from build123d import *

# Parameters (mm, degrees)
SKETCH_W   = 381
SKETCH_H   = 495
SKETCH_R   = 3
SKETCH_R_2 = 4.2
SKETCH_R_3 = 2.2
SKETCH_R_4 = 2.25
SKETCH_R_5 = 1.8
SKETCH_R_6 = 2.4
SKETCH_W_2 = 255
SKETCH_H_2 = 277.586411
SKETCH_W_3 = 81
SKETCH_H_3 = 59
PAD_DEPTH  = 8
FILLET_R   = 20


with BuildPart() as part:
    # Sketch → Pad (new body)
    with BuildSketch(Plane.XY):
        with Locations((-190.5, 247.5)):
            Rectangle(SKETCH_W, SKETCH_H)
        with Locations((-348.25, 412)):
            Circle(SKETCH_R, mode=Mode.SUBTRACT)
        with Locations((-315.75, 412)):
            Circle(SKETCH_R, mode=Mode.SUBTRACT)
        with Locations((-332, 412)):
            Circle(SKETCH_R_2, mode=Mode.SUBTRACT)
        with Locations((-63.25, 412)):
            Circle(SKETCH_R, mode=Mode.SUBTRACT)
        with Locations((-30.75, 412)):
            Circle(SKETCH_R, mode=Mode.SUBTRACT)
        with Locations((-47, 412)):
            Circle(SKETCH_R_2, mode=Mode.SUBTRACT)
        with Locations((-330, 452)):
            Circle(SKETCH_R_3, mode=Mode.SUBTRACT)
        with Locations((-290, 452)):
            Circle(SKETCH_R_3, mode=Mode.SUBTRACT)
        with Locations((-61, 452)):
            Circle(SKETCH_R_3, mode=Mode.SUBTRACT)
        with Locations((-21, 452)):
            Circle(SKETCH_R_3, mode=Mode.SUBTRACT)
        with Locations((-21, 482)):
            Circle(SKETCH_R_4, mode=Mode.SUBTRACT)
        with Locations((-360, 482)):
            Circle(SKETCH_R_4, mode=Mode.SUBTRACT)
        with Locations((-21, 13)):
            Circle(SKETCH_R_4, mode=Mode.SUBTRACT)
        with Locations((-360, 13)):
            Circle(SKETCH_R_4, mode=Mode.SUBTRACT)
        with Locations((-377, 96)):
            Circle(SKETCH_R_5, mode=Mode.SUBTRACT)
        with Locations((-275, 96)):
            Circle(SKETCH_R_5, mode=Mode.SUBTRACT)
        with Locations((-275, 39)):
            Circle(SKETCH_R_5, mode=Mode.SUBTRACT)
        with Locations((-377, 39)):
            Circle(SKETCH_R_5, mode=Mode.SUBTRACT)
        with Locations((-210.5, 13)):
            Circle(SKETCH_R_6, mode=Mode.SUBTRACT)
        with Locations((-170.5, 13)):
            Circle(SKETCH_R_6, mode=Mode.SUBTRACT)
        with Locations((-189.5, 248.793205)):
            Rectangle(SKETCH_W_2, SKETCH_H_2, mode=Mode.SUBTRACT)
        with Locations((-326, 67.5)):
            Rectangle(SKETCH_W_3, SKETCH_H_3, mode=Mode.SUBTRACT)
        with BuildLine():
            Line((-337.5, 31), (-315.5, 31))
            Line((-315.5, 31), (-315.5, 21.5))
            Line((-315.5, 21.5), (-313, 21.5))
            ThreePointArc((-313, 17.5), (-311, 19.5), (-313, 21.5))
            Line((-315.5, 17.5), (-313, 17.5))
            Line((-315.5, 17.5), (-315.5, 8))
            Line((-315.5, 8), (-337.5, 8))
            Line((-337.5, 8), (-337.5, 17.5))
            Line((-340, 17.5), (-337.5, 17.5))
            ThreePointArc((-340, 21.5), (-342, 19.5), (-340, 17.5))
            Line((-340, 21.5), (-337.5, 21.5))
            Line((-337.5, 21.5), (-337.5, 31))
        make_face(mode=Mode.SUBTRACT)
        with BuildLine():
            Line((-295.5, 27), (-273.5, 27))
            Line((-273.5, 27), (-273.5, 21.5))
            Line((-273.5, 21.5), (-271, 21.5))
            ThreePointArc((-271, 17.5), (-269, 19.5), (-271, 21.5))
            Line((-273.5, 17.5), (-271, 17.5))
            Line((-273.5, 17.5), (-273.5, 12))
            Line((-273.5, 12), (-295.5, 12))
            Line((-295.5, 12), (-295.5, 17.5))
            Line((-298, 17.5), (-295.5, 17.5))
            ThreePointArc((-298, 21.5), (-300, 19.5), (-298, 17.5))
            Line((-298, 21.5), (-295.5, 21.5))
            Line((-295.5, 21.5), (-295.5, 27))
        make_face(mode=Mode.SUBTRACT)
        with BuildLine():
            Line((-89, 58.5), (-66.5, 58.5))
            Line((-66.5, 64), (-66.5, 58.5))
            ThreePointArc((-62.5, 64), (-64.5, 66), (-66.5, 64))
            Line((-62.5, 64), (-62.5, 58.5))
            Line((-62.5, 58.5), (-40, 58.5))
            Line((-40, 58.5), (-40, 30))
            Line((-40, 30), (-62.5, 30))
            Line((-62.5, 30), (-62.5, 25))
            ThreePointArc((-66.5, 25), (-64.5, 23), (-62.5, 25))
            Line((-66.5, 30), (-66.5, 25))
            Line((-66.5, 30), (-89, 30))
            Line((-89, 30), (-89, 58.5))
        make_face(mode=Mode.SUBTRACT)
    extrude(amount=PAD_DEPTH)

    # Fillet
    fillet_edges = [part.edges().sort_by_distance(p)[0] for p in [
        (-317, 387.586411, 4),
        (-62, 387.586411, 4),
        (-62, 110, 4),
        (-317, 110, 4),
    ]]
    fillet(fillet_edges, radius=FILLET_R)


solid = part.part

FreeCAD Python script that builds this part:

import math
import FreeCAD as App
import Part
import Sketcher

V = App.Vector
Q = App.Units.Quantity


def edges_at(feature, points):
    """Names of the edges that pass closest to the given points."""
    edges = feature.Shape.Edges
    near = lambda p: min(range(len(edges)), key=lambda i: edges[i].distToShape(Part.Vertex(*p))[0])
    return sorted({f"Edge{near(p) + 1}" for p in points})


def add_polygon(sketch, points):
    """Adds a closed chain of lines whose ends are joined by coincident constraints."""
    first, n = sketch.GeometryCount, len(points)
    for a, b in zip(points, points[1:] + points[:1]):
        sketch.addGeometry(Part.LineSegment(App.Vector(*a, 0), App.Vector(*b, 0)), False)
    for i in range(n):
        sketch.addConstraint(Sketcher.Constraint("Coincident", first + i, 2, first + (i + 1) % n, 1))

doc = App.newDocument("Part")
body = doc.addObject("PartDesign::Body", "Body")

sketch1 = doc.addObject("Sketcher::SketchObject", "Sketch")
body.addObject(sketch1)
sketch1.AttachmentSupport = (doc.XY_Plane, [""])
sketch1.MapMode = "FlatFace"
add_polygon(sketch1, [(-381, 495), (-381, 0), (0, 0), (0, 495)])
sketch1.addGeometry(Part.Circle(V(-360, 13, 0), V(0, 0, 1), 2.25), False)
sketch1.addGeometry(Part.Circle(V(-377, 39, 0), V(0, 0, 1), 1.8), False)
sketch1.addGeometry(Part.LineSegment(V(-337.5, 21.5, 0), V(-337.5, 31, 0)), False)
sketch1.addGeometry(Part.LineSegment(V(-337.5, 31, 0), V(-315.5, 31, 0)), False)
sketch1.addGeometry(Part.LineSegment(V(-315.5, 31, 0), V(-315.5, 21.5, 0)), False)
sketch1.addGeometry(Part.LineSegment(V(-315.5, 21.5, 0), V(-313, 21.5, 0)), False)
sketch1.addGeometry(Part.ArcOfCircle(Part.Circle(V(-313, 19.5, 0), V(0, 0, 1), 2), math.radians(-90), math.radians(90)), False)
sketch1.addGeometry(Part.LineSegment(V(-313, 17.5, 0), V(-315.5, 17.5, 0)), False)
sketch1.addGeometry(Part.LineSegment(V(-315.5, 17.5, 0), V(-315.5, 8, 0)), False)
sketch1.addGeometry(Part.LineSegment(V(-315.5, 8, 0), V(-337.5, 8, 0)), False)
sketch1.addGeometry(Part.LineSegment(V(-337.5, 8, 0), V(-337.5, 17.5, 0)), False)
sketch1.addGeometry(Part.LineSegment(V(-337.5, 17.5, 0), V(-340, 17.5, 0)), False)
sketch1.addGeometry(Part.ArcOfCircle(Part.Circle(V(-340, 19.5, 0), V(0, 0, 1), 2), math.radians(90), math.radians(270)), False)
sketch1.addGeometry(Part.LineSegment(V(-340, 21.5, 0), V(-337.5, 21.5, 0)), False)
add_polygon(sketch1, [(-285.5, 38), (-366.5, 38), (-366.5, 97), (-285.5, 97)])
sketch1.addGeometry(Part.Circle(V(-377, 96, 0), V(0, 0, 1), 1.8), False)
sketch1.addGeometry(Part.LineSegment(V(-295.5, 21.5, 0), V(-295.5, 27, 0)), False)
sketch1.addGeometry(Part.LineSegment(V(-295.5, 27, 0), V(-273.5, 27, 0)), False)
sketch1.addGeometry(Part.LineSegment(V(-273.5, 27, 0), V(-273.5, 21.5, 0)), False)
sketch1.addGeometry(Part.LineSegment(V(-273.5, 21.5, 0), V(-271, 21.5, 0)), False)
sketch1.addGeometry(Part.ArcOfCircle(Part.Circle(V(-271, 19.5, 0), V(0, 0, 1), 2), math.radians(-90), math.radians(90)), False)
sketch1.addGeometry(Part.LineSegment(V(-271, 17.5, 0), V(-273.5, 17.5, 0)), False)
sketch1.addGeometry(Part.LineSegment(V(-273.5, 17.5, 0), V(-273.5, 12, 0)), False)
sketch1.addGeometry(Part.LineSegment(V(-273.5, 12, 0), V(-295.5, 12, 0)), False)
sketch1.addGeometry(Part.LineSegment(V(-295.5, 12, 0), V(-295.5, 17.5, 0)), False)
sketch1.addGeometry(Part.LineSegment(V(-295.5, 17.5, 0), V(-298, 17.5, 0)), False)
sketch1.addGeometry(Part.ArcOfCircle(Part.Circle(V(-298, 19.5, 0), V(0, 0, 1), 2), math.radians(90), math.radians(270)), False)
sketch1.addGeometry(Part.LineSegment(V(-298, 21.5, 0), V(-295.5, 21.5, 0)), False)
sketch1.addGeometry(Part.Circle(V(-275, 39, 0), V(0, 0, 1), 1.8), False)
sketch1.addGeometry(Part.Circle(V(-210.5, 13, 0), V(0, 0, 1), 2.4), False)
sketch1.addGeometry(Part.Circle(V(-275, 96, 0), V(0, 0, 1), 1.8), False)
sketch1.addGeometry(Part.Circle(V(-170.5, 13, 0), V(0, 0, 1), 2.4), False)
sketch1.addGeometry(Part.LineSegment(V(-89, 30, 0), V(-89, 58.5, 0)), False)
sketch1.addGeometry(Part.LineSegment(V(-89, 58.5, 0), V(-66.5, 58.5, 0)), False)
sketch1.addGeometry(Part.LineSegment(V(-66.5, 58.5, 0), V(-66.5, 64, 0)), False)
sketch1.addGeometry(Part.ArcOfCircle(Part.Circle(V(-64.5, 64, 0), V(0, 0, 1), 2), math.radians(0), math.radians(180)), False)
sketch1.addGeometry(Part.LineSegment(V(-62.5, 64, 0), V(-62.5, 58.5, 0)), False)
sketch1.addGeometry(Part.LineSegment(V(-62.5, 58.5, 0), V(-40, 58.5, 0)), False)
sketch1.addGeometry(Part.LineSegment(V(-40, 58.5, 0), V(-40, 30, 0)), False)
sketch1.addGeometry(Part.LineSegment(V(-40, 30, 0), V(-62.5, 30, 0)), False)
sketch1.addGeometry(Part.LineSegment(V(-62.5, 30, 0), V(-62.5, 25, 0)), False)
sketch1.addGeometry(Part.ArcOfCircle(Part.Circle(V(-64.5, 25, 0), V(0, 0, 1), 2), math.radians(180), math.radians(360)), False)
sketch1.addGeometry(Part.LineSegment(V(-66.5, 25, 0), V(-66.5, 30, 0)), False)
sketch1.addGeometry(Part.LineSegment(V(-66.5, 30, 0), V(-89, 30, 0)), False)
sketch1.addGeometry(Part.Circle(V(-21, 13, 0), V(0, 0, 1), 2.25), False)
sketch1.addGeometry(Part.Circle(V(-348.25, 412, 0), V(0, 0, 1), 3), False)
sketch1.addGeometry(Part.Circle(V(-332, 412, 0), V(0, 0, 1), 4.2), False)
sketch1.addGeometry(Part.Circle(V(-315.75, 412, 0), V(0, 0, 1), 3), False)
sketch1.addGeometry(Part.Circle(V(-360, 482, 0), V(0, 0, 1), 2.25), False)
sketch1.addGeometry(Part.Circle(V(-330, 452, 0), V(0, 0, 1), 2.2), False)
sketch1.addGeometry(Part.Circle(V(-290, 452, 0), V(0, 0, 1), 2.2), False)
add_polygon(sketch1, [(-62, 110), (-317, 110), (-317, 387.58641), (-62, 387.58641)])
sketch1.addGeometry(Part.Circle(V(-63.25, 412, 0), V(0, 0, 1), 3), False)
sketch1.addGeometry(Part.Circle(V(-47, 412, 0), V(0, 0, 1), 4.2), False)
sketch1.addGeometry(Part.Circle(V(-30.75, 412, 0), V(0, 0, 1), 3), False)
sketch1.addGeometry(Part.Circle(V(-61, 452, 0), V(0, 0, 1), 2.2), False)
sketch1.addGeometry(Part.Circle(V(-21, 452, 0), V(0, 0, 1), 2.2), False)
sketch1.addGeometry(Part.Circle(V(-21, 482, 0), V(0, 0, 1), 2.25), False)
sketch1.addConstraint([
    Sketcher.Constraint("Coincident", 6, 2, 7, 1),
    Sketcher.Constraint("Coincident", 7, 2, 8, 1),
    Sketcher.Constraint("Coincident", 8, 2, 9, 1),
    Sketcher.Constraint("Tangent", 9, 2, 10, 2),
    Sketcher.Constraint("Tangent", 10, 1, 11, 1),
    Sketcher.Constraint("Coincident", 11, 2, 12, 1),
    Sketcher.Constraint("Coincident", 12, 2, 13, 1),
    Sketcher.Constraint("Coincident", 13, 2, 14, 1),
    Sketcher.Constraint("Coincident", 14, 2, 15, 1),
    Sketcher.Constraint("Tangent", 15, 2, 16, 2),
    Sketcher.Constraint("Tangent", 16, 1, 17, 1),
    Sketcher.Constraint("Coincident", 17, 2, 6, 1),
    Sketcher.Constraint("Coincident", 23, 2, 24, 1),
    Sketcher.Constraint("Coincident", 24, 2, 25, 1),
    Sketcher.Constraint("Coincident", 25, 2, 26, 1),
    Sketcher.Constraint("Tangent", 26, 2, 27, 2),
    Sketcher.Constraint("Tangent", 27, 1, 28, 1),
    Sketcher.Constraint("Coincident", 28, 2, 29, 1),
    Sketcher.Constraint("Coincident", 29, 2, 30, 1),
    Sketcher.Constraint("Coincident", 30, 2, 31, 1),
    Sketcher.Constraint("Coincident", 31, 2, 32, 1),
    Sketcher.Constraint("Tangent", 32, 2, 33, 2),
    Sketcher.Constraint("Tangent", 33, 1, 34, 1),
    Sketcher.Constraint("Coincident", 34, 2, 23, 1),
    Sketcher.Constraint("Coincident", 39, 2, 40, 1),
    Sketcher.Constraint("Coincident", 40, 2, 41, 1),
    Sketcher.Constraint("Tangent", 41, 2, 42, 2),
    Sketcher.Constraint("Tangent", 42, 1, 43, 1),
    Sketcher.Constraint("Coincident", 43, 2, 44, 1),
    Sketcher.Constraint("Coincident", 44, 2, 45, 1),
    Sketcher.Constraint("Coincident", 45, 2, 46, 1),
    Sketcher.Constraint("Coincident", 46, 2, 47, 1),
    Sketcher.Constraint("Tangent", 47, 2, 48, 2),
    Sketcher.Constraint("Tangent", 48, 1, 49, 1),
    Sketcher.Constraint("Coincident", 49, 2, 50, 1),
    Sketcher.Constraint("Coincident", 50, 2, 39, 1),
    Sketcher.Constraint("Vertical", 0),
    Sketcher.Constraint("Horizontal", 1),
    Sketcher.Constraint("Vertical", 2),
    Sketcher.Constraint("Horizontal", 3),
    Sketcher.Constraint("Vertical", 6),
    Sketcher.Constraint("Horizontal", 7),
    Sketcher.Constraint("Vertical", 8),
    Sketcher.Constraint("Horizontal", 9),
    Sketcher.Constraint("Horizontal", 11),
    Sketcher.Constraint("Vertical", 12),
    Sketcher.Constraint("Horizontal", 13),
    Sketcher.Constraint("Vertical", 14),
    Sketcher.Constraint("Horizontal", 15),
    Sketcher.Constraint("Horizontal", 17),
    Sketcher.Constraint("Horizontal", 18),
    Sketcher.Constraint("Vertical", 19),
    Sketcher.Constraint("Horizontal", 20),
    Sketcher.Constraint("Vertical", 21),
    Sketcher.Constraint("Vertical", 23),
    Sketcher.Constraint("Horizontal", 24),
    Sketcher.Constraint("Vertical", 25),
    Sketcher.Constraint("Horizontal", 26),
    Sketcher.Constraint("Horizontal", 28),
    Sketcher.Constraint("Vertical", 29),
    Sketcher.Constraint("Horizontal", 30),
    Sketcher.Constraint("Vertical", 31),
    Sketcher.Constraint("Horizontal", 32),
    Sketcher.Constraint("Horizontal", 34),
    Sketcher.Constraint("Vertical", 39),
    Sketcher.Constraint("Horizontal", 40),
    Sketcher.Constraint("Vertical", 41),
    Sketcher.Constraint("Vertical", 43),
    Sketcher.Constraint("Horizontal", 44),
    Sketcher.Constraint("Vertical", 45),
    Sketcher.Constraint("Horizontal", 46),
    Sketcher.Constraint("Vertical", 47),
    Sketcher.Constraint("Vertical", 49),
    Sketcher.Constraint("Horizontal", 50),
    Sketcher.Constraint("Horizontal", 58),
    Sketcher.Constraint("Vertical", 59),
    Sketcher.Constraint("Horizontal", 60),
    Sketcher.Constraint("Vertical", 61),
    Sketcher.Constraint("Coincident", 1, 2, -1, 1),
    Sketcher.Constraint("Equal", 10, 16),
    Sketcher.Constraint("Equal", 5, 22),
    Sketcher.Constraint("Equal", 16, 27),
    Sketcher.Constraint("Equal", 27, 33),
    Sketcher.Constraint("Equal", 22, 35),
    Sketcher.Constraint("Equal", 35, 37),
    Sketcher.Constraint("Equal", 36, 38),
    Sketcher.Constraint("Equal", 33, 42),
    Sketcher.Constraint("Equal", 42, 48),
    Sketcher.Constraint("Equal", 4, 51),
    Sketcher.Constraint("Equal", 52, 54),
    Sketcher.Constraint("Equal", 51, 55),
    Sketcher.Constraint("Equal", 56, 57),
    Sketcher.Constraint("Equal", 54, 62),
    Sketcher.Constraint("Equal", 53, 63),
    Sketcher.Constraint("Equal", 62, 64),
    Sketcher.Constraint("Equal", 57, 65),
    Sketcher.Constraint("Equal", 65, 66),
    Sketcher.Constraint("Equal", 55, 67),
    Sketcher.Constraint("Horizontal", 10, 3, 16, 3),
    Sketcher.Constraint("Horizontal", 16, 3, 27, 3),
    Sketcher.Constraint("Horizontal", 27, 3, 33, 3),
    Sketcher.Constraint("Horizontal", 5, 3, 35, 3),
    Sketcher.Constraint("Horizontal", 4, 3, 36, 3),
    Sketcher.Constraint("Horizontal", 22, 3, 37, 3),
    Sketcher.Constraint("Horizontal", 36, 3, 38, 3),
    Sketcher.Constraint("Horizontal", 38, 3, 51, 3),
    Sketcher.Constraint("Horizontal", 52, 3, 53, 3),
    Sketcher.Constraint("Horizontal", 53, 3, 54, 3),
    Sketcher.Constraint("Horizontal", 56, 3, 57, 3),
    Sketcher.Constraint("Horizontal", 54, 3, 62, 3),
    Sketcher.Constraint("Horizontal", 62, 3, 63, 3),
    Sketcher.Constraint("Horizontal", 63, 3, 64, 3),
    Sketcher.Constraint("Horizontal", 57, 3, 65, 3),
    Sketcher.Constraint("Horizontal", 65, 3, 66, 3),
    Sketcher.Constraint("Horizontal", 55, 3, 67, 3),
    Sketcher.Constraint("Horizontal", 40, 2, 43, 2),
    Sketcher.Constraint("Horizontal", 46, 2, 49, 2),
    Sketcher.Constraint("Vertical", 5, 3, 22, 3),
    Sketcher.Constraint("Vertical", 35, 3, 37, 3),
    Sketcher.Constraint("Vertical", 42, 3, 48, 3),
    Sketcher.Constraint("Vertical", 4, 3, 55, 3),
    Sketcher.Constraint("Vertical", 51, 3, 66, 3),
    Sketcher.Constraint("Vertical", 66, 3, 67, 3),
    Sketcher.Constraint("Vertical", 8, 2, 11, 2),
    Sketcher.Constraint("Vertical", 6, 2, 13, 2),
    Sketcher.Constraint("Vertical", 25, 2, 28, 2),
    Sketcher.Constraint("Vertical", 23, 2, 30, 2),
    Sketcher.Constraint("Equal", 11, 15),
    Sketcher.Constraint("Equal", 13, 24),
    Sketcher.Constraint("Equal", 17, 26),
    Sketcher.Constraint("Equal", 28, 32),
    Sketcher.Constraint("Equal", 40, 44),
    Sketcher.Constraint("Equal", 8, 12),
    Sketcher.Constraint("Equal", 25, 29),
    Sketcher.Constraint("Equal", 31, 41),
    Sketcher.Constraint("Diameter", 52, Q("6 mm")),
    Sketcher.Constraint("Radius", 10, Q("2 mm")),
    Sketcher.Constraint("Diameter", 4, Q("4.5 mm")),
    Sketcher.Constraint("Diameter", 5, Q("3.6 mm")),
    Sketcher.Constraint("Diameter", 36, Q("4.8 mm")),
    Sketcher.Constraint("Diameter", 53, Q("8.4 mm")),
    Sketcher.Constraint("Diameter", 56, Q("4.4 mm")),
    Sketcher.Constraint("DistanceX", 1, 1, 1, 2, Q("381 mm")),
    Sketcher.Constraint("DistanceX", 7, 1, 7, 2, Q("22 mm")),
    Sketcher.Constraint("DistanceX", 18, 2, 18, 1, Q("81 mm")),
    Sketcher.Constraint("DistanceX", 58, 2, 58, 1, Q("255 mm")),
    Sketcher.Constraint("DistanceY", 0, 2, 0, 1, Q("495 mm")),
    Sketcher.Constraint("DistanceY", 19, 1, 19, 2, Q("59 mm")),
    Sketcher.Constraint("DistanceY", 47, 2, 47, 1, Q("5 mm")),
    Sketcher.Constraint("DistanceX", 9, 1, 9, 2, Q("2.5 mm")),
    Sketcher.Constraint("DistanceX", 40, 1, 40, 2, Q("22.5 mm")),
    Sketcher.Constraint("DistanceY", 6, 1, 6, 2, Q("9.5 mm")),
    Sketcher.Constraint("DistanceY", 23, 1, 23, 2, Q("5.5 mm")),
    Sketcher.Constraint("DistanceY", 39, 1, 39, 2, Q("28.5 mm")),
    Sketcher.Constraint("DistanceX", 4, 3, -1, 1, Q("360 mm")),
    Sketcher.Constraint("DistanceY", -1, 1, 4, 3, Q("13 mm")),
    Sketcher.Constraint("DistanceX", 5, 3, -1, 1, Q("377 mm")),
    Sketcher.Constraint("DistanceY", -1, 1, 5, 3, Q("39 mm")),
    Sketcher.Constraint("DistanceX", 10, 3, -1, 1, Q("313 mm")),
    Sketcher.Constraint("DistanceY", -1, 1, 22, 3, Q("96 mm")),
    Sketcher.Constraint("DistanceX", 27, 3, -1, 1, Q("271 mm")),
    Sketcher.Constraint("DistanceX", 35, 3, -1, 1, Q("275 mm")),
    Sketcher.Constraint("DistanceY", -1, 1, 42, 3, Q("64 mm")),
    Sketcher.Constraint("DistanceX", 51, 3, -1, 1, Q("21 mm")),
    Sketcher.Constraint("DistanceY", -1, 1, 52, 3, Q("412 mm")),
    Sketcher.Constraint("DistanceX", 53, 3, -1, 1, Q("332 mm")),
    Sketcher.Constraint("DistanceY", -1, 1, 55, 3, Q("482 mm")),
    Sketcher.Constraint("DistanceX", 56, 3, -1, 1, Q("330 mm")),
    Sketcher.Constraint("DistanceY", -1, 1, 56, 3, Q("452 mm")),
    Sketcher.Constraint("DistanceX", 57, 3, -1, 1, Q("290 mm")),
    Sketcher.Constraint("DistanceX", 63, 3, -1, 1, Q("47 mm")),
    Sketcher.Constraint("DistanceX", 65, 3, -1, 1, Q("61 mm")),
    Sketcher.Constraint("DistanceY", -1, 1, 6, 2, Q("31 mm")),
    Sketcher.Constraint("DistanceY", -1, 1, 18, 2, Q("38 mm")),
    Sketcher.Constraint("DistanceX", 39, 2, -1, 1, Q("89 mm")),
    Sketcher.Constraint("DistanceX", 58, 2, -1, 1, Q("317 mm")),
    Sketcher.Constraint("DistanceY", -1, 1, 58, 2, Q("110 mm")),
    Sketcher.Constraint("DistanceX", 36, 3, -1, 1, Q("210.5 mm")),
    Sketcher.Constraint("DistanceX", 38, 3, -1, 1, Q("170.5 mm")),
    Sketcher.Constraint("DistanceX", 18, 2, -1, 1, Q("366.5 mm")),
    Sketcher.Constraint("DistanceX", 52, 3, -1, 1, Q("348.25 mm")),
    Sketcher.Constraint("DistanceX", 54, 3, -1, 1, Q("315.75 mm")),
    Sketcher.Constraint("DistanceX", 62, 3, -1, 1, Q("63.25 mm")),
    Sketcher.Constraint("DistanceX", 64, 3, -1, 1, Q("30.75 mm")),
    Sketcher.Constraint("DistanceY", 59, 1, 59, 2, Q("277.586411 mm")),
])
pad1 = doc.addObject("PartDesign::Pad", "Pad")
body.addObject(pad1)
pad1.Profile = sketch1
pad1.Length = 8
doc.recompute()

fillet = doc.addObject("PartDesign::Fillet", "Fillet")
body.addObject(fillet)
fillet.Base = (pad1, edges_at(pad1, [
    (-317, 387.586, 4),
    (-62, 387.586, 4),
    (-62, 110, 4),
    (-317, 110, 4),
]))
fillet.Radius = 20

doc.recompute()
